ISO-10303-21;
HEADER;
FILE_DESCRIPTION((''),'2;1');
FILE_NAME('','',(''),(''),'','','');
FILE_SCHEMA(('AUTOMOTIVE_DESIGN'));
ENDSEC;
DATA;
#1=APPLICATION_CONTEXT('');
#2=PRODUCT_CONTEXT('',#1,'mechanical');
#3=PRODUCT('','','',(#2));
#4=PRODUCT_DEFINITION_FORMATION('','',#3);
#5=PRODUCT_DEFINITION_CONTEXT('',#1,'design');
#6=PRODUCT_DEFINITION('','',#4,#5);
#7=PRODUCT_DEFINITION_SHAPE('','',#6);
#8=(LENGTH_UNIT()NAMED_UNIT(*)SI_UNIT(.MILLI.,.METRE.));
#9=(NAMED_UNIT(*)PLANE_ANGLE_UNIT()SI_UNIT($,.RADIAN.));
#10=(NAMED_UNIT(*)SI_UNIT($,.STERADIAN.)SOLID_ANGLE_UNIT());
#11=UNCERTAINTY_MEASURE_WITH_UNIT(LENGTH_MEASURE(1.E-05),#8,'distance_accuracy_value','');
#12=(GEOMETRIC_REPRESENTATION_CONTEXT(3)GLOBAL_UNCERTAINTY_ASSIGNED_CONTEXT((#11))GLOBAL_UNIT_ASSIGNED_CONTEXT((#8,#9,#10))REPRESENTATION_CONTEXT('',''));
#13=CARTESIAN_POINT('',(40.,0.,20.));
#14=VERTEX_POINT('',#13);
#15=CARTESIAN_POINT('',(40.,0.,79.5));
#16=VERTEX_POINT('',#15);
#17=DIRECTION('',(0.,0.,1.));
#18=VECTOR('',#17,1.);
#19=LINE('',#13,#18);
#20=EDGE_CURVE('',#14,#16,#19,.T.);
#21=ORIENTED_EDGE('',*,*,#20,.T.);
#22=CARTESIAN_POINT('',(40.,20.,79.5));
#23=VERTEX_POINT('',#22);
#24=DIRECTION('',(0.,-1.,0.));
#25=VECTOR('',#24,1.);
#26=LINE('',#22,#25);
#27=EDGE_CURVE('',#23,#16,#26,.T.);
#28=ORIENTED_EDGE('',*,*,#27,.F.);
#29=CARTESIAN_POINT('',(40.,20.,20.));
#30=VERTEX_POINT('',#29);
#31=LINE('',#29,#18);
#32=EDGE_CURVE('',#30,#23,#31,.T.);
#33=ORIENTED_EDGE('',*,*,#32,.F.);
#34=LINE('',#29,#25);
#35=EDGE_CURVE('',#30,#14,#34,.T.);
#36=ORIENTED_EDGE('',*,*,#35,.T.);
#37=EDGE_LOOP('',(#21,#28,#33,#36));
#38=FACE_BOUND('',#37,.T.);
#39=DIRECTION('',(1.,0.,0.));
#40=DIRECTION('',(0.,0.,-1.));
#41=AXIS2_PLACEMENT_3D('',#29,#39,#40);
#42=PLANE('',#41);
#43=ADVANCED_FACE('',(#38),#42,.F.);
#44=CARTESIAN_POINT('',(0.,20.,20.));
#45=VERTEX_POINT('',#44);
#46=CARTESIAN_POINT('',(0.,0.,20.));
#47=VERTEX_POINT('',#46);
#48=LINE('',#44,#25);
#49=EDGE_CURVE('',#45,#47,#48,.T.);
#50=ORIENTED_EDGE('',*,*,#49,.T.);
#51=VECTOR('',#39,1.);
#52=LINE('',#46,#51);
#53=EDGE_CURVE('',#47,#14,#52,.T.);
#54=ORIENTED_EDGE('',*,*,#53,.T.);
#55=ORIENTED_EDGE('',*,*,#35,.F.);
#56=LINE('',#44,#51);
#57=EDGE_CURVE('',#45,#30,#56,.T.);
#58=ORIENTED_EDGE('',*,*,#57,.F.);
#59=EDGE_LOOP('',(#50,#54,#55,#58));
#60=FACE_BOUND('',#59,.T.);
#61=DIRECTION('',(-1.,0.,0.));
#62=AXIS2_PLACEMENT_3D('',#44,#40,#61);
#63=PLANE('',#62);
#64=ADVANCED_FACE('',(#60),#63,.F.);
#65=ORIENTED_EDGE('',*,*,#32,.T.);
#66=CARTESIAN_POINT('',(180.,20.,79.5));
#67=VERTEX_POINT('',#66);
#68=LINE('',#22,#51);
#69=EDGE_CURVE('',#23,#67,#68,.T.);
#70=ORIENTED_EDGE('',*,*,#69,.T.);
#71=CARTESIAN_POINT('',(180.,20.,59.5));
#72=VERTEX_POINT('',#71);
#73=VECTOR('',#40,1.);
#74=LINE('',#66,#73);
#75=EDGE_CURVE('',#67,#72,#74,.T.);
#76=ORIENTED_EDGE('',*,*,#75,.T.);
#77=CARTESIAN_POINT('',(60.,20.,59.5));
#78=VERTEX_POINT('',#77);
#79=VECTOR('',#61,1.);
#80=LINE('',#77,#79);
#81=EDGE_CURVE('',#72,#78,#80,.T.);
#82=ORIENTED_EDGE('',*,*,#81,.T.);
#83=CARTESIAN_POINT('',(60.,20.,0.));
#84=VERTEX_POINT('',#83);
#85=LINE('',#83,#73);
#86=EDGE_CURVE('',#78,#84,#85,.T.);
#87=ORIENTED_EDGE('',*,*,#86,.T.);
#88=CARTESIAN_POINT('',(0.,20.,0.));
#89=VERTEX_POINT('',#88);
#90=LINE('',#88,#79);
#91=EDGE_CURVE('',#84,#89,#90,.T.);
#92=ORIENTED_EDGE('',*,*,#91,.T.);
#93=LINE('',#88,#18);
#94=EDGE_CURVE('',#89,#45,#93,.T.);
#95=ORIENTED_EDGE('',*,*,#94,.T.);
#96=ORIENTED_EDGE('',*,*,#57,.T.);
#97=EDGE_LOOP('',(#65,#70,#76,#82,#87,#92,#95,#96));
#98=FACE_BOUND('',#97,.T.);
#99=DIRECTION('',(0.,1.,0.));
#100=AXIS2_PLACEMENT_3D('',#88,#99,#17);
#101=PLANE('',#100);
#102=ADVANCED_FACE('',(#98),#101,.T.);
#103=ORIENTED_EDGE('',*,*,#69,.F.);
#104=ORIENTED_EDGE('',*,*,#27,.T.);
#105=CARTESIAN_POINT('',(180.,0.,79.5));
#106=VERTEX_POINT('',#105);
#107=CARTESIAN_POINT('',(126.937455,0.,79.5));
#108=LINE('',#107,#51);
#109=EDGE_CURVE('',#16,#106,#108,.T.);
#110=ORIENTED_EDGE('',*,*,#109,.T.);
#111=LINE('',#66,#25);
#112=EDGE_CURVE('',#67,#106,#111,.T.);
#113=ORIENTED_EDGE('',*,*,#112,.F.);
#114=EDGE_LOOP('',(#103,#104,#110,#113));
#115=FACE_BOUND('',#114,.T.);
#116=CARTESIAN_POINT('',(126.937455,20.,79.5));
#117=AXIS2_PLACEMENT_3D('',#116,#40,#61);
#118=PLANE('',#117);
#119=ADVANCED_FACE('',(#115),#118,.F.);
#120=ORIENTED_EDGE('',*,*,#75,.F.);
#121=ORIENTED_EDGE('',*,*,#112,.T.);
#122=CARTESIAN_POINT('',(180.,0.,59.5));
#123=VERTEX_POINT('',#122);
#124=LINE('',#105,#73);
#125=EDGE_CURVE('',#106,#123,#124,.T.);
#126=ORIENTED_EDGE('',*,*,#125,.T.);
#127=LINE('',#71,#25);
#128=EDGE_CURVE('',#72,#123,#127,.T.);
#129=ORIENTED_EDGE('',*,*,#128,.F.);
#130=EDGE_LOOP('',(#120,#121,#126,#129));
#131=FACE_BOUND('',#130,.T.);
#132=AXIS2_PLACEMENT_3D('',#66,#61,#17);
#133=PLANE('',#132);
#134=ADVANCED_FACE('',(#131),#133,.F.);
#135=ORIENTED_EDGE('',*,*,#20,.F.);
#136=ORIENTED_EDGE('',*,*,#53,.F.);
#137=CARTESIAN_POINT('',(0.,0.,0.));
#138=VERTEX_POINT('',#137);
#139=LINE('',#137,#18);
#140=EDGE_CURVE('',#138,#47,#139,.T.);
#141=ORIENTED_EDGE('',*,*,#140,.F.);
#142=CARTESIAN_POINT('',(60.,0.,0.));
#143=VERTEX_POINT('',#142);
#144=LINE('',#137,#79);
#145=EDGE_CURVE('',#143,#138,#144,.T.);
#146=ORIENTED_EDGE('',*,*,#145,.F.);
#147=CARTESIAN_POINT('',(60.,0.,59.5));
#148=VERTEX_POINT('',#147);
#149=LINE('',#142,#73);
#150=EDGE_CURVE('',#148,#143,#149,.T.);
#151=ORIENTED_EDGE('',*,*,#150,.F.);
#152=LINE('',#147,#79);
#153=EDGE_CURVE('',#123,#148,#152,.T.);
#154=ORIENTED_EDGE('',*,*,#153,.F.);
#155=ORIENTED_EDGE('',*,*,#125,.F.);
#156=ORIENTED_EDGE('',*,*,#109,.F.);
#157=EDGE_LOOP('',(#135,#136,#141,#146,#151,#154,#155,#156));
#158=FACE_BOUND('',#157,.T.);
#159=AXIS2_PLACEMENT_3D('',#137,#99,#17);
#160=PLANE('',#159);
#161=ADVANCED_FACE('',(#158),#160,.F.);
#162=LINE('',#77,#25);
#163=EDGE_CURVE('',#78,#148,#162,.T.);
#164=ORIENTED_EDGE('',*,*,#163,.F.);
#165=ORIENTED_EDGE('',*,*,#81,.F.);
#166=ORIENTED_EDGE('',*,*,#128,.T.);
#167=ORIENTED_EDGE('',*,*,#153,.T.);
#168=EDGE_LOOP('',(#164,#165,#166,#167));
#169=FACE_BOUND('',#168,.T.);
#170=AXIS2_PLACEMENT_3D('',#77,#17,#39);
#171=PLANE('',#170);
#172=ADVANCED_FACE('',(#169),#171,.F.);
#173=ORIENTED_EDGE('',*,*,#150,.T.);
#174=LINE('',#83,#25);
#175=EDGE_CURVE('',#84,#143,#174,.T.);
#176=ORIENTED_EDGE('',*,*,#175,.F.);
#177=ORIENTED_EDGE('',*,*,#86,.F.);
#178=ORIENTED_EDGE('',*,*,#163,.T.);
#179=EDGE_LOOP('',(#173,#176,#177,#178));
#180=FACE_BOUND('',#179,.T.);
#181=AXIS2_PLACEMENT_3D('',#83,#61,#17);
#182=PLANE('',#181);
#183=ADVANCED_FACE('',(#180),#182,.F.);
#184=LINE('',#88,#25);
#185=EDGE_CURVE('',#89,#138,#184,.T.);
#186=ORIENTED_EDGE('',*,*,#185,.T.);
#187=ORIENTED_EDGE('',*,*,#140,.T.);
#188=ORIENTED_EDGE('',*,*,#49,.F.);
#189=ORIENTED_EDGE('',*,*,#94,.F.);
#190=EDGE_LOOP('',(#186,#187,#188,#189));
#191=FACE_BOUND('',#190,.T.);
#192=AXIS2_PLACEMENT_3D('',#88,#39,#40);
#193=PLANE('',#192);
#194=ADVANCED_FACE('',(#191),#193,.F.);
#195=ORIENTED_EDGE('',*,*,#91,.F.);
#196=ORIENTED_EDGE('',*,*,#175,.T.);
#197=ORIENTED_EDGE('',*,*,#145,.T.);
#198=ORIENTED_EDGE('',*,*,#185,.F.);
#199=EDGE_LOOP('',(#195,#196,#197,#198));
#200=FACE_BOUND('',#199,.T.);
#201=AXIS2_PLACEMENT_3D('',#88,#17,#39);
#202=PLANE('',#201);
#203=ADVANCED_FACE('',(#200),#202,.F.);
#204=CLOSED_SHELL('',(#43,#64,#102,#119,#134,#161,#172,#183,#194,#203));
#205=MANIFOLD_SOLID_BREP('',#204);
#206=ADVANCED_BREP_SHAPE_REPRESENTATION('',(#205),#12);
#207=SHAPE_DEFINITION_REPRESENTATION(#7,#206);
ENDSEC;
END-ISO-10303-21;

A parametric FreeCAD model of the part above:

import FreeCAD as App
import Part
import Sketcher
from FreeCAD import Vector

doc = App.newDocument("Part")
body = doc.addObject("PartDesign::Body", "Body")

# Sketch on XZ plane
sketch1 = doc.addObject("Sketcher::SketchObject", "Sketch")
body.addObject(sketch1)
sketch1.AttachmentSupport = (doc.XZ_Plane, [""])
sketch1.MapMode = "FlatFace"
sketch1.addGeometry(Part.LineSegment(Vector(60, 0, 0), Vector(0, 0, 0)), False)
sketch1.addGeometry(Part.LineSegment(Vector(0, 0, 0), Vector(0, 20, 0)), False)
sketch1.addGeometry(Part.LineSegment(Vector(0, 20, 0), Vector(40, 20, 0)), False)
sketch1.addGeometry(Part.LineSegment(Vector(40, 20, 0), Vector(40, 80, 0)), False)
sketch1.addGeometry(Part.LineSegment(Vector(40, 80, 0), Vector(180, 80, 0)), False)
sketch1.addGeometry(Part.LineSegment(Vector(180, 80, 0), Vector(180, 60, 0)), False)
sketch1.addGeometry(Part.LineSegment(Vector(180, 60, 0), Vector(60, 60, 0)), False)
sketch1.addGeometry(Part.LineSegment(Vector(60, 60, 0), Vector(60, 0, 0)), False)
sketch1.addConstraint(Sketcher.Constraint("Coincident", 0, 2, 1, 1))
sketch1.addConstraint(Sketcher.Constraint("Coincident", 1, 2, 2, 1))
sketch1.addConstraint(Sketcher.Constraint("Coincident", 2, 2, 3, 1))
sketch1.addConstraint(Sketcher.Constraint("Coincident", 3, 2, 4, 1))
sketch1.addConstraint(Sketcher.Constraint("Coincident", 4, 2, 5, 1))
sketch1.addConstraint(Sketcher.Constraint("Coincident", 5, 2, 6, 1))
sketch1.addConstraint(Sketcher.Constraint("Coincident", 6, 2, 7, 1))
sketch1.addConstraint(Sketcher.Constraint("Coincident", 7, 2, 0, 1))
sketch1.addConstraint(Sketcher.Constraint("Horizontal", 0))
sketch1.addConstraint(Sketcher.Constraint("Vertical", 1))
sketch1.addConstraint(Sketcher.Constraint("Horizontal", 2))
sketch1.addConstraint(Sketcher.Constraint("Vertical", 3))
sketch1.addConstraint(Sketcher.Constraint("Horizontal", 4))
sketch1.addConstraint(Sketcher.Constraint("Vertical", 5))
sketch1.addConstraint(Sketcher.Constraint("Horizontal", 6))
sketch1.addConstraint(Sketcher.Constraint("Vertical", 7))
sketch1.addConstraint(Sketcher.Constraint("Coincident", 0, 2, -1, 1))
sketch1.addConstraint(Sketcher.Constraint("Equal", 1, 5))
sketch1.addConstraint(Sketcher.Constraint("DistanceX", 0, 2, 0, 1, 60.0))
sketch1.addConstraint(Sketcher.Constraint("DistanceX", 2, 1, 2, 2, 40.0))
sketch1.addConstraint(Sketcher.Constraint("DistanceX", 4, 1, 4, 2, 140.0))
sketch1.addConstraint(Sketcher.Constraint("DistanceY", 1, 1, 1, 2, 20.0))
sketch1.addConstraint(Sketcher.Constraint("DistanceY", 3, 1, 3, 2, 59.5))
pad1 = doc.addObject("PartDesign::Pad", "Pad")
body.addObject(pad1)
pad1.Profile = sketch1
pad1.Length = 20
pad1.Reversed = True

doc.recompute()
